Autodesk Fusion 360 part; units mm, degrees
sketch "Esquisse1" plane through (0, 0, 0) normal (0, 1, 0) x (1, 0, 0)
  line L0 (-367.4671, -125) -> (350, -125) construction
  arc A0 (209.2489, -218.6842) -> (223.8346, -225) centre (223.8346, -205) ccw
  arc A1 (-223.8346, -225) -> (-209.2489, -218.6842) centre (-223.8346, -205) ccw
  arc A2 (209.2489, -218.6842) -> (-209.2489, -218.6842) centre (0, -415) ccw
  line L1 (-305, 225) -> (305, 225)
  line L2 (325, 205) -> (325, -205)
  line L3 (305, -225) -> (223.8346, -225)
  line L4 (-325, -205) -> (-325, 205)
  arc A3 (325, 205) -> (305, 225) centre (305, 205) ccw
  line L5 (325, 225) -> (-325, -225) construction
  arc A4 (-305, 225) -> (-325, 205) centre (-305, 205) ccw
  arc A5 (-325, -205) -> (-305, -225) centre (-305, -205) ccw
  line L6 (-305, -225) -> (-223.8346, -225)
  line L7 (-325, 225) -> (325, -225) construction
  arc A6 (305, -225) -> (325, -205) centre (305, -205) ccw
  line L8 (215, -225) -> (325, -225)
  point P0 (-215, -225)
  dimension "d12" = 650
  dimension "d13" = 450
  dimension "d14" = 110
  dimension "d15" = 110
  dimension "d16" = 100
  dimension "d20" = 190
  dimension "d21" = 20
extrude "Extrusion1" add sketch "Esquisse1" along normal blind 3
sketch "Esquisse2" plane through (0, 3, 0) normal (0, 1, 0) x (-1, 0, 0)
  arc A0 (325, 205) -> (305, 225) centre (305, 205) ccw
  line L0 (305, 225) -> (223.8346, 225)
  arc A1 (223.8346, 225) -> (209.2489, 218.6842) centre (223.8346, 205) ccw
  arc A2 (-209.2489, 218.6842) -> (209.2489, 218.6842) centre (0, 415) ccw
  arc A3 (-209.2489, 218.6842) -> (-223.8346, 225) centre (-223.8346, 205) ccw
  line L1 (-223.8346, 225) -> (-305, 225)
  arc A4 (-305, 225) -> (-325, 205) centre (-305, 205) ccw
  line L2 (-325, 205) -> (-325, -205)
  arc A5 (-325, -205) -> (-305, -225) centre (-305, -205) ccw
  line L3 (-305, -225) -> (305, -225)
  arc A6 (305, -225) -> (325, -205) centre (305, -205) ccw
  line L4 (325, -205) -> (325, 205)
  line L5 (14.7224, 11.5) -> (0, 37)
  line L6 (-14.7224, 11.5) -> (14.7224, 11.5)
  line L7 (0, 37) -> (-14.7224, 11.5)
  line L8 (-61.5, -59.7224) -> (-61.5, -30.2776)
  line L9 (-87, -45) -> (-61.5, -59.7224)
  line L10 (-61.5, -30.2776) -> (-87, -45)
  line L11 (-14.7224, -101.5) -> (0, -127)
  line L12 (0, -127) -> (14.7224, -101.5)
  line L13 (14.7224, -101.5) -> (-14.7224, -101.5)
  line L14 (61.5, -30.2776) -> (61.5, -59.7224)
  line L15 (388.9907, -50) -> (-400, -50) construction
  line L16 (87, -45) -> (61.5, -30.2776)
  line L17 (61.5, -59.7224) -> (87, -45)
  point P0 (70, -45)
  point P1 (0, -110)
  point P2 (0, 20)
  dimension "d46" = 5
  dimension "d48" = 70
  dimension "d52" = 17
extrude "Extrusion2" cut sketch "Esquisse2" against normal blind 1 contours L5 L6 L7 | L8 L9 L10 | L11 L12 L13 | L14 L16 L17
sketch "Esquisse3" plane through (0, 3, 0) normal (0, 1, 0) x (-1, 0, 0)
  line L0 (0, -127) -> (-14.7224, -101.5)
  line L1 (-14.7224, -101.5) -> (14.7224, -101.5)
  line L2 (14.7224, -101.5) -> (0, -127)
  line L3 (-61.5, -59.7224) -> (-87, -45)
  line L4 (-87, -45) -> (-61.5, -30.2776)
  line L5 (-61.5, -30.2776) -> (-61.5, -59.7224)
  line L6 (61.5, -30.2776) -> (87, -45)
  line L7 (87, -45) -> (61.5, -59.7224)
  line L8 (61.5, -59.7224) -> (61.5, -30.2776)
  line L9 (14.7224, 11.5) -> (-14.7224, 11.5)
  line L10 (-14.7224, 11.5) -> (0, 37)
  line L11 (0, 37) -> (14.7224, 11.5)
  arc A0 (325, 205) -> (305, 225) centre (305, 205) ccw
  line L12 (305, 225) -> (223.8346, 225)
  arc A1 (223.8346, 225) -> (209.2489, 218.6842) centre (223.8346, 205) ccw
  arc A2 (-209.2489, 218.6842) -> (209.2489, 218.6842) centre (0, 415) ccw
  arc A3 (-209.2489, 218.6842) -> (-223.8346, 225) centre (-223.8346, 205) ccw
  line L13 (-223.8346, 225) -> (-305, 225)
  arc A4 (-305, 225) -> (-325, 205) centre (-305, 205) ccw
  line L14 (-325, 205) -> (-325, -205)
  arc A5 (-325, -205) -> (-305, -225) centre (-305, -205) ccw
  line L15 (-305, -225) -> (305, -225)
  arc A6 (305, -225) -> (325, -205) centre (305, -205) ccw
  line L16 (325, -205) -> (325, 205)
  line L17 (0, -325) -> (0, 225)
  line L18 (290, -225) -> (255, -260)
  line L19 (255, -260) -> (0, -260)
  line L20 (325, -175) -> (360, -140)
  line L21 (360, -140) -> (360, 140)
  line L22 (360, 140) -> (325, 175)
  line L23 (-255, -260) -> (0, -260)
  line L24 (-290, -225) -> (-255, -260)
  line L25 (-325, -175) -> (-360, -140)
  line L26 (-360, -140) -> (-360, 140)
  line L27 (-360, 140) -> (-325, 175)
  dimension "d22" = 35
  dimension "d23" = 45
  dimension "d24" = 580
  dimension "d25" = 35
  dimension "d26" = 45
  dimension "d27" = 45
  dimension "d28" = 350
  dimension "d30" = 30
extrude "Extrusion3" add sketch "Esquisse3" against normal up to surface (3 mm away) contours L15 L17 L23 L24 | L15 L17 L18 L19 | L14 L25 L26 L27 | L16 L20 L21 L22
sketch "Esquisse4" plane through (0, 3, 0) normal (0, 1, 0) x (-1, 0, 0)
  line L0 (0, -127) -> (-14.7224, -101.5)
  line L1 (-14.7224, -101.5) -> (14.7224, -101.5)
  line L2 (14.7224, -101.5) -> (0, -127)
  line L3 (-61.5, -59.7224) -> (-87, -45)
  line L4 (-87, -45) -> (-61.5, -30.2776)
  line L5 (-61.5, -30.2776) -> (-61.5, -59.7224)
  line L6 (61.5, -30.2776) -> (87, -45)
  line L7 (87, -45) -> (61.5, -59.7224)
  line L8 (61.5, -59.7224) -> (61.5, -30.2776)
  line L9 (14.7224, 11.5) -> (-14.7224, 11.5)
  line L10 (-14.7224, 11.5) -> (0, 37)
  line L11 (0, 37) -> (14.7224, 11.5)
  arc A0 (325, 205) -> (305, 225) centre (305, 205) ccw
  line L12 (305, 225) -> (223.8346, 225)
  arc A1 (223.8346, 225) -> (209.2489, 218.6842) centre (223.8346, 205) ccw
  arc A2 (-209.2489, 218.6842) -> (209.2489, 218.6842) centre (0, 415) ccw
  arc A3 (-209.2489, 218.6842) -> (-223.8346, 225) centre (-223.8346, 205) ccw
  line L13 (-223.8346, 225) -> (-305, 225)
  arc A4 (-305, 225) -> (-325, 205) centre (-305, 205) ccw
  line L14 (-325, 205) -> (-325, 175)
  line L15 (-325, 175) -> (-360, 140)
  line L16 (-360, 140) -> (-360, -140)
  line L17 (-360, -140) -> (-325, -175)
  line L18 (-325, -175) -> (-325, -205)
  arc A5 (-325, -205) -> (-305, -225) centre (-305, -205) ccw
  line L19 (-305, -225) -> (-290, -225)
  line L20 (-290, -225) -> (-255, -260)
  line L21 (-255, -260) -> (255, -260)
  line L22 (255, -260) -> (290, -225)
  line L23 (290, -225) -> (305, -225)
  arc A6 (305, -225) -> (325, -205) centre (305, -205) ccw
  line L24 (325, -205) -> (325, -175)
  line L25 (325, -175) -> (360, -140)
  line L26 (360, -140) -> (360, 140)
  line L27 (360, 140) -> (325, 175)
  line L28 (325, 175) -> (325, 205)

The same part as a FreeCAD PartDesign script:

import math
import FreeCAD as App
import Part
import Sketcher

V = App.Vector
Q = App.Units.Quantity


def add_polygon(sketch, points):
    """Adds a closed chain of lines whose ends are joined by coincident constraints."""
    first, n = sketch.GeometryCount, len(points)
    for a, b in zip(points, points[1:] + points[:1]):
        sketch.addGeometry(Part.LineSegment(App.Vector(*a, 0), App.Vector(*b, 0)), False)
    for i in range(n):
        sketch.addConstraint(Sketcher.Constraint("Coincident", first + i, 2, first + (i + 1) % n, 1))

doc = App.newDocument("Part")
body = doc.addObject("PartDesign::Body", "Body")

# Sketch on XZ plane
sketch1 = body.newObject("Sketcher::SketchObject", "Sketch")
sketch1.AttachmentSupport = (doc.getObject("XZ_Plane"), [""])
sketch1.MapMode = "FlatFace"
sketch1.addGeometry([
    Part.ArcOfCircle(Part.Circle(V(0, 415, 0), V(0, 0, 1), 286.923327), math.radians(-136.826493), math.radians(-43.173507)),  # 0
    Part.ArcOfCircle(Part.Circle(V(223.8346, 205, 0), V(0, 0, 1), 19.999999), math.radians(90), math.radians(136.826489)),  # 1
    Part.LineSegment(V(223.8346, 225, 0), V(305, 225, 0)),  # 2
    Part.ArcOfCircle(Part.Circle(V(305, 205, 0), V(0, 0, 1), 20), math.radians(0), math.radians(90)),  # 3
    Part.LineSegment(V(325, 205, 0), V(325, -205, 0)),  # 4
    Part.ArcOfCircle(Part.Circle(V(305, -205, 0), V(0, 0, 1), 20), math.radians(-90), math.radians(0)),  # 5
    Part.LineSegment(V(305, -225, 0), V(-305, -225, 0)),  # 6
    Part.ArcOfCircle(Part.Circle(V(-305, -205, 0), V(0, 0, 1), 20), math.radians(180), math.radians(270)),  # 7
    Part.LineSegment(V(-325, -205, 0), V(-325, 205, 0)),  # 8
    Part.ArcOfCircle(Part.Circle(V(-305, 205, 0), V(0, 0, 1), 20), math.radians(90), math.radians(180)),  # 9
    Part.LineSegment(V(-305, 225, 0), V(-223.8346, 225, 0)),  # 10
    Part.ArcOfCircle(Part.Circle(V(-223.8346, 205, 0), V(0, 0, 1), 20), math.radians(43.173511), math.radians(90)),  # 11
], False)
sketch1.addConstraint([
    Sketcher.Constraint("Tangent", 0, 2, 1, 2),
    Sketcher.Constraint("Tangent", 1, 1, 2, 1),
    Sketcher.Constraint("Tangent", 2, 2, 3, 2),
    Sketcher.Constraint("Tangent", 3, 1, 4, 1),
    Sketcher.Constraint("Tangent", 4, 2, 5, 2),
    Sketcher.Constraint("Tangent", 5, 1, 6, 1),
    Sketcher.Constraint("Tangent", 6, 2, 7, 2),
    Sketcher.Constraint("Tangent", 7, 1, 8, 1),
    Sketcher.Constraint("Tangent", 8, 2, 9, 2),
    Sketcher.Constraint("Tangent", 9, 1, 10, 1),
    Sketcher.Constraint("Tangent", 10, 2, 11, 2),
    Sketcher.Constraint("Tangent", 11, 1, 0, 1),
    Sketcher.Constraint("Horizontal", 2),
    Sketcher.Constraint("Vertical", 4),
    Sketcher.Constraint("Horizontal", 6),
    Sketcher.Constraint("Vertical", 8),
    Sketcher.Constraint("Horizontal", 10),
    Sketcher.Constraint("Equal", 1, 3),
    Sketcher.Constraint("Equal", 3, 5),
    Sketcher.Constraint("Equal", 5, 7),
    Sketcher.Constraint("Equal", 7, 9),
    Sketcher.Constraint("Equal", 9, 11),
    Sketcher.Constraint("Symmetric", 3, 3, 7, 3, -1, 1),
    Sketcher.Constraint("Symmetric", 1, 3, 11, 3, -2),
    Sketcher.Constraint("Radius", 1, Q("20 mm")),
    Sketcher.Constraint("DistanceY", 1, 1, 0, 3, Q("190 mm")),
    Sketcher.Constraint("DistanceX", 6, 2, 6, 1, Q("610 mm")),
    Sketcher.Constraint("DistanceY", 4, 2, 4, 1, Q("410 mm")),
    Sketcher.Constraint("Radius", 0, Q("286.9233 mm")),
])
pad1 = body.newObject("PartDesign::Pad", "Pad")
pad1.Profile = sketch1
pad1.Length = 3
pad1.Reversed = True

# Sketch on XZ plane
sketch2 = body.newObject("Sketcher::SketchObject", "Sketch001")
sketch2.AttachmentSupport = (doc.getObject("XZ_Plane"), [""])
sketch2.MapMode = "FlatFace"
sketch2.AttachmentOffset = App.Placement(V(0, 0, -3), App.Rotation())
add_polygon(sketch2, [(14.7224, 11.5), (-14.7224, 11.5), (0, 37)])  # lines 0-2
add_polygon(sketch2, [(87, -45), (61.5, -59.7224), (61.5, -30.2776)])  # lines 3-5
add_polygon(sketch2, [(-14.7224, -101.5), (14.7224, -101.5), (0, -127)])  # lines 6-8
add_polygon(sketch2, [(-87, -45), (-61.5, -30.2776), (-61.5, -59.7224)])  # lines 9-11
sketch2.addConstraint([
    Sketcher.Constraint("Horizontal", 0),
    Sketcher.Constraint("Vertical", 4),
    Sketcher.Constraint("Horizontal", 6),
    Sketcher.Constraint("Vertical", 10),
    Sketcher.Constraint("Symmetric", 4, 2, 9, 2, -2),
    Sketcher.Constraint("Symmetric", 5, 2, 11, 2, -2),
    Sketcher.Constraint("PointOnObject", 1, 2, -2),
    Sketcher.Constraint("PointOnObject", 7, 2, -2),
    Sketcher.Constraint("Perpendicular", 2, 3),
    Sketcher.Constraint("Perpendicular", 1, 5),
    Sketcher.Constraint("Perpendicular", 5, 7),
    Sketcher.Constraint("Perpendicular", 3, 8),
    Sketcher.Constraint("Perpendicular", 8, 9),
    Sketcher.Constraint("Perpendicular", 7, 11),
    Sketcher.Constraint("Vertical", 2, 2, 6, 2),
    Sketcher.Constraint("Equal", 6, 4),
    Sketcher.Constraint("Angle", 1, Q("60 deg")),
    Sketcher.Constraint("DistanceY", -1, 1, 1, 2, Q("37 mm")),
    Sketcher.Constraint("DistanceX", -1, 1, 5, 2, Q("87 mm")),
    Sketcher.Constraint("DistanceY", 5, 2, -1, 1, Q("45 mm")),
    Sketcher.Constraint("DistanceY", 7, 2, -1, 1, Q("127 mm")),
    Sketcher.Constraint("DistanceY", 6, 2, 2, 2, Q("113 mm")),
])
pocket1 = body.newObject("PartDesign::Pocket", "Pocket")
pocket1.Profile = sketch2
pocket1.Length = 1
pocket1.Reversed = True

# Sketch on XZ plane
sketch3 = body.newObject("Sketcher::SketchObject", "Sketch002")
sketch3.AttachmentSupport = (doc.getObject("XZ_Plane"), [""])
sketch3.MapMode = "FlatFace"
sketch3.AttachmentOffset = App.Placement(V(0, 0, -3), App.Rotation())
add_polygon(sketch3, [(255, -260), (-255, -260), (-290, -225), (290, -225)])  # lines 0-3
add_polygon(sketch3, [(360, -140), (325, -175), (325, 175), (360, 140)])  # lines 4-7
add_polygon(sketch3, [(-325, 175), (-325, -175), (-360, -140), (-360, 140)])  # lines 8-11
sketch3.addConstraint([
    Sketcher.Constraint("Horizontal", 0),
    Sketcher.Constraint("Horizontal", 2),
    Sketcher.Constraint("Vertical", 5),
    Sketcher.Constraint("Vertical", 7),
    Sketcher.Constraint("Vertical", 8),
    Sketcher.Constraint("Vertical", 10),
    Sketcher.Constraint("Symmetric", 5, 2, 8, 2, -1, 1),
    Sketcher.Constraint("Symmetric", 6, 2, 9, 2, -1, 1),
    Sketcher.Constraint("Perpendicular", 1, 3),
    Sketcher.Constraint("Parallel", 3, 4),
    Sketcher.Constraint("Perpendicular", 4, 6),
    Sketcher.Constraint("Perpendicular", 9, 11),
    Sketcher.Constraint("Horizontal", 4, 2, 8, 2),
    Sketcher.Constraint("Horizontal", 7, 2, 9, 2),
    Sketcher.Constraint("Horizontal", 6, 2, 10, 2),
    Sketcher.Constraint("Equal", 3, 4),
    Sketcher.Constraint("DistanceX", 2, 1, 2, 2, Q("580 mm")),
    Sketcher.Constraint("DistanceY", 5, 1, 5, 2, Q("350 mm")),
    Sketcher.Constraint("DistanceX", 1, 2, 0, 2, Q("35 mm")),
    Sketcher.Constraint("DistanceX", 2, 2, 4, 2, Q("35 mm")),
    Sketcher.Constraint("DistanceX", 8, 2, 1, 2, Q("35 mm")),
    Sketcher.Constraint("DistanceY", 0, 2, -1, 1, Q("260 mm")),
])
pad2 = body.newObject("PartDesign::Pad", "Pad001")
pad2.Profile = sketch3
pad2.Length = 3

doc.recompute()
